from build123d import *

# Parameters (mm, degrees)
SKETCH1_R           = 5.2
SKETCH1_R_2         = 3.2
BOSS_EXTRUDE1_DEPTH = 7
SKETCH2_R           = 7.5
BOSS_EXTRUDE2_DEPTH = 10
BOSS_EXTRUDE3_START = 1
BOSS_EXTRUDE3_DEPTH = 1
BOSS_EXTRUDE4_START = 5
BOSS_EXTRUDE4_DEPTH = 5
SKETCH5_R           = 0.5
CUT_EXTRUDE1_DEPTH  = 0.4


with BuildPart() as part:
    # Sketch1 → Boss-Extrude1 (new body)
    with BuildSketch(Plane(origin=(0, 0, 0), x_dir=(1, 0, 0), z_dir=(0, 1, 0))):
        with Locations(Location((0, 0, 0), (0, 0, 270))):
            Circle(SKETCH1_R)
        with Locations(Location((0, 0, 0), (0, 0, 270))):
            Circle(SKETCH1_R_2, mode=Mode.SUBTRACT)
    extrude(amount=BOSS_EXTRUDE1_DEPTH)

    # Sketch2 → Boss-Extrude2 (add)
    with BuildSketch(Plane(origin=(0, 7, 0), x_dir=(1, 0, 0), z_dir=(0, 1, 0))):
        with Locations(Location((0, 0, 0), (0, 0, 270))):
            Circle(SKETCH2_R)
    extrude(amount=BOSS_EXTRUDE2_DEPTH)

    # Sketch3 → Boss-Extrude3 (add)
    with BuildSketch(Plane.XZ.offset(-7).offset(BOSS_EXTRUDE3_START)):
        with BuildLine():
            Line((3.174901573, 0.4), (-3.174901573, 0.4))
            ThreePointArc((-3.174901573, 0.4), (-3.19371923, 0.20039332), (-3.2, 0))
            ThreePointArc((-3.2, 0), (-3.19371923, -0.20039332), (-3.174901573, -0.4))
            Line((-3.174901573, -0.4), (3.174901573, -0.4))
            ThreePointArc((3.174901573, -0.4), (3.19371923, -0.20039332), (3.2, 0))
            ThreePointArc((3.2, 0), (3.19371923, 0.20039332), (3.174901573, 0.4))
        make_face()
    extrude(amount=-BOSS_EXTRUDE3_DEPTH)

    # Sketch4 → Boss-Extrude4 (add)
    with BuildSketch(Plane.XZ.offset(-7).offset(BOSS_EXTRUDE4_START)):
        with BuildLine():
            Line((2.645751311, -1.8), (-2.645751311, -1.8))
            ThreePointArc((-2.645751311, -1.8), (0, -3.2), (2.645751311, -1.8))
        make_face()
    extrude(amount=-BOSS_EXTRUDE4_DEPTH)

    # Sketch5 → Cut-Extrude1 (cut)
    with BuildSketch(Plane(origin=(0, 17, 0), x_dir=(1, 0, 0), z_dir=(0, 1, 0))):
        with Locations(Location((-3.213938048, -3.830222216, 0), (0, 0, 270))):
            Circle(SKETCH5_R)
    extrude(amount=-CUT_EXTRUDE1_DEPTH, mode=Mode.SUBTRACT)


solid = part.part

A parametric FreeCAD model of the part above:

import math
import FreeCAD as App
import Part
import Sketcher

V = App.Vector
Q = App.Units.Quantity

doc = App.newDocument("Part")
body = doc.addObject("PartDesign::Body", "Body")

# Sketch on XZ plane
sketch1 = body.newObject("Sketcher::SketchObject", "Sketch")
sketch1.AttachmentSupport = (doc.getObject("XZ_Plane"), [""])
sketch1.MapMode = "FlatFace"
sketch1.addGeometry(Part.Circle(V(0, 0, 0), V(0, 0, 1), 5.2), False)
sketch1.addGeometry(Part.Circle(V(0, 0, 0), V(0, 0, 1), 3.2), False)
sketch1.addConstraint(Sketcher.Constraint("Coincident", 0, 3, -1, 1))
sketch1.addConstraint(Sketcher.Constraint("Coincident", 1, 3, -1, 1))
sketch1.addConstraint(Sketcher.Constraint("Diameter", 0, Q("10.4 mm")))
sketch1.addConstraint(Sketcher.Constraint("Diameter", 1, Q("6.4 mm")))
pad1 = body.newObject("PartDesign::Pad", "Pad")
pad1.Profile = sketch1
pad1.Length = 7
pad1.Reversed = True

# Sketch on XZ plane
sketch2 = body.newObject("Sketcher::SketchObject", "Sketch001")
sketch2.AttachmentSupport = (doc.getObject("XZ_Plane"), [""])
sketch2.MapMode = "FlatFace"
sketch2.AttachmentOffset = App.Placement(V(0, 0, -7), App.Rotation())
sketch2.addGeometry(Part.Circle(V(0, 0, 0), V(0, 0, 1), 8), False)
sketch2.addConstraint(Sketcher.Constraint("Coincident", 0, 3, -1, 1))
sketch2.addConstraint(Sketcher.Constraint("Diameter", 0, Q("15 mm")))
pad2 = body.newObject("PartDesign::Pad", "Pad001")
pad2.Profile = sketch2
pad2.Length = 10
pad2.Reversed = True

# Sketch on XZ plane
sketch3 = body.newObject("Sketcher::SketchObject", "Sketch002")
sketch3.AttachmentSupport = (doc.getObject("XZ_Plane"), [""])
sketch3.MapMode = "FlatFace"
sketch3.AttachmentOffset = App.Placement(V(0, 0, -6), App.Rotation())
sketch3.addGeometry(Part.LineSegment(V(3.17, 0.4, 0), V(-3.17, 0.4, 0)), False)
sketch3.addGeometry(Part.ArcOfCircle(Part.Circle(V(0, 0, 0), V(0, 0, 1), 3.2), math.radians(172.82), math.radians(180)), False)
sketch3.addGeometry(Part.ArcOfCircle(Part.Circle(V(0, 0, 0), V(0, 0, 1), 3.2), math.radians(180), math.radians(187.18)), False)
sketch3.addGeometry(Part.LineSegment(V(-3.17, -0.4, 0), V(3.17, -0.4, 0)), False)
sketch3.addGeometry(Part.ArcOfCircle(Part.Circle(V(0, 0, 0), V(0, 0, 1), 3.2), math.radians(-7.18), math.radians(0)), False)
sketch3.addGeometry(Part.ArcOfCircle(Part.Circle(V(0, 0, 0), V(0, 0, 1), 3.2), math.radians(0), math.radians(7.18)), False)
sketch3.addConstraint(Sketcher.Constraint("Coincident", 0, 2, 1, 1))
sketch3.addConstraint(Sketcher.Constraint("Tangent", 1, 2, 2, 1))
sketch3.addConstraint(Sketcher.Constraint("Coincident", 2, 2, 3, 1))
sketch3.addConstraint(Sketcher.Constraint("Coincident", 3, 2, 4, 1))
sketch3.addConstraint(Sketcher.Constraint("Tangent", 4, 2, 5, 1))
sketch3.addConstraint(Sketcher.Constraint("Coincident", 5, 2, 0, 1))
sketch3.addConstraint(Sketcher.Constraint("Horizontal", 0))
sketch3.addConstraint(Sketcher.Constraint("Horizontal", 3))
sketch3.addConstraint(Sketcher.Constraint("Coincident", 1, 3, -1, 1))
sketch3.addConstraint(Sketcher.Constraint("Coincident", 4, 3, -1, 1))
sketch3.addConstraint(Sketcher.Constraint("Equal", 1, 2))
sketch3.addConstraint(Sketcher.Constraint("Equal", 2, 4))
sketch3.addConstraint(Sketcher.Constraint("Equal", 4, 5))
sketch3.addConstraint(Sketcher.Constraint("PointOnObject", 1, 2, -1))
sketch3.addConstraint(Sketcher.Constraint("PointOnObject", 4, 2, -1))
sketch3.addConstraint(Sketcher.Constraint("Vertical", 0, 2, 2, 2))
sketch3.addConstraint(Sketcher.Constraint("Radius", 1, Q("3.2 mm")))
sketch3.addConstraint(Sketcher.Constraint("DistanceY", -1, 1, 0, 2, Q("0.4 mm")))
pad3 = body.newObject("PartDesign::Pad", "Pad002")
pad3.Profile = sketch3
pad3.Length = 1
pad3.Reversed = True

# Sketch on XZ plane
sketch4 = body.newObject("Sketcher::SketchObject", "Sketch003")
sketch4.AttachmentSupport = (doc.getObject("XZ_Plane"), [""])
sketch4.MapMode = "FlatFace"
sketch4.AttachmentOffset = App.Placement(V(0, 0, -2), App.Rotation())
sketch4.addGeometry(Part.LineSegment(V(2.6, -1.8, 0), V(-2.6, -1.8, 0)), False)
sketch4.addGeometry(Part.ArcOfCircle(Part.Circle(V(0, 0, 0), V(0, 0, 1), 3.2), math.radians(-146), math.radians(-34)), False)
sketch4.addConstraint(Sketcher.Constraint("Coincident", 0, 1, 1, 2))
sketch4.addConstraint(Sketcher.Constraint("Coincident", 1, 1, 0, 2))
sketch4.addConstraint(Sketcher.Constraint("Horizontal", 0))
sketch4.addConstraint(Sketcher.Constraint("Coincident", 1, 3, -1, 1))
sketch4.addConstraint(Sketcher.Constraint("Radius", 1, Q("3.2 mm")))
sketch4.addConstraint(Sketcher.Constraint("DistanceY", 0, 1, -1, 1, Q("1.8 mm")))
pad4 = body.newObject("PartDesign::Pad", "Pad003")
pad4.Profile = sketch4
pad4.Length = 5
pad4.Reversed = True

# Sketch on XZ plane
sketch5 = body.newObject("Sketcher::SketchObject", "Sketch004")
sketch5.AttachmentSupport = (doc.getObject("XZ_Plane"), [""])
sketch5.MapMode = "FlatFace"
sketch5.AttachmentOffset = App.Placement(V(0, 0, -17), App.Rotation())
sketch5.addGeometry(Part.Circle(V(-3.2, 3.8, 0), V(0, 0, 1), 0.5), False)
sketch5.addConstraint(Sketcher.Constraint("Diameter", 0, Q("1 mm")))
sketch5.addConstraint(Sketcher.Constraint("DistanceX", 0, 3, -1, 1, Q("3.213938 mm")))
sketch5.addConstraint(Sketcher.Constraint("DistanceY", -1, 1, 0, 3, Q("3.830222 mm")))
pocket1 = body.newObject("PartDesign::Pocket", "Pocket")
pocket1.Profile = sketch5
pocket1.Length = 0.4
pocket1.Reversed = True

doc.recompute()
